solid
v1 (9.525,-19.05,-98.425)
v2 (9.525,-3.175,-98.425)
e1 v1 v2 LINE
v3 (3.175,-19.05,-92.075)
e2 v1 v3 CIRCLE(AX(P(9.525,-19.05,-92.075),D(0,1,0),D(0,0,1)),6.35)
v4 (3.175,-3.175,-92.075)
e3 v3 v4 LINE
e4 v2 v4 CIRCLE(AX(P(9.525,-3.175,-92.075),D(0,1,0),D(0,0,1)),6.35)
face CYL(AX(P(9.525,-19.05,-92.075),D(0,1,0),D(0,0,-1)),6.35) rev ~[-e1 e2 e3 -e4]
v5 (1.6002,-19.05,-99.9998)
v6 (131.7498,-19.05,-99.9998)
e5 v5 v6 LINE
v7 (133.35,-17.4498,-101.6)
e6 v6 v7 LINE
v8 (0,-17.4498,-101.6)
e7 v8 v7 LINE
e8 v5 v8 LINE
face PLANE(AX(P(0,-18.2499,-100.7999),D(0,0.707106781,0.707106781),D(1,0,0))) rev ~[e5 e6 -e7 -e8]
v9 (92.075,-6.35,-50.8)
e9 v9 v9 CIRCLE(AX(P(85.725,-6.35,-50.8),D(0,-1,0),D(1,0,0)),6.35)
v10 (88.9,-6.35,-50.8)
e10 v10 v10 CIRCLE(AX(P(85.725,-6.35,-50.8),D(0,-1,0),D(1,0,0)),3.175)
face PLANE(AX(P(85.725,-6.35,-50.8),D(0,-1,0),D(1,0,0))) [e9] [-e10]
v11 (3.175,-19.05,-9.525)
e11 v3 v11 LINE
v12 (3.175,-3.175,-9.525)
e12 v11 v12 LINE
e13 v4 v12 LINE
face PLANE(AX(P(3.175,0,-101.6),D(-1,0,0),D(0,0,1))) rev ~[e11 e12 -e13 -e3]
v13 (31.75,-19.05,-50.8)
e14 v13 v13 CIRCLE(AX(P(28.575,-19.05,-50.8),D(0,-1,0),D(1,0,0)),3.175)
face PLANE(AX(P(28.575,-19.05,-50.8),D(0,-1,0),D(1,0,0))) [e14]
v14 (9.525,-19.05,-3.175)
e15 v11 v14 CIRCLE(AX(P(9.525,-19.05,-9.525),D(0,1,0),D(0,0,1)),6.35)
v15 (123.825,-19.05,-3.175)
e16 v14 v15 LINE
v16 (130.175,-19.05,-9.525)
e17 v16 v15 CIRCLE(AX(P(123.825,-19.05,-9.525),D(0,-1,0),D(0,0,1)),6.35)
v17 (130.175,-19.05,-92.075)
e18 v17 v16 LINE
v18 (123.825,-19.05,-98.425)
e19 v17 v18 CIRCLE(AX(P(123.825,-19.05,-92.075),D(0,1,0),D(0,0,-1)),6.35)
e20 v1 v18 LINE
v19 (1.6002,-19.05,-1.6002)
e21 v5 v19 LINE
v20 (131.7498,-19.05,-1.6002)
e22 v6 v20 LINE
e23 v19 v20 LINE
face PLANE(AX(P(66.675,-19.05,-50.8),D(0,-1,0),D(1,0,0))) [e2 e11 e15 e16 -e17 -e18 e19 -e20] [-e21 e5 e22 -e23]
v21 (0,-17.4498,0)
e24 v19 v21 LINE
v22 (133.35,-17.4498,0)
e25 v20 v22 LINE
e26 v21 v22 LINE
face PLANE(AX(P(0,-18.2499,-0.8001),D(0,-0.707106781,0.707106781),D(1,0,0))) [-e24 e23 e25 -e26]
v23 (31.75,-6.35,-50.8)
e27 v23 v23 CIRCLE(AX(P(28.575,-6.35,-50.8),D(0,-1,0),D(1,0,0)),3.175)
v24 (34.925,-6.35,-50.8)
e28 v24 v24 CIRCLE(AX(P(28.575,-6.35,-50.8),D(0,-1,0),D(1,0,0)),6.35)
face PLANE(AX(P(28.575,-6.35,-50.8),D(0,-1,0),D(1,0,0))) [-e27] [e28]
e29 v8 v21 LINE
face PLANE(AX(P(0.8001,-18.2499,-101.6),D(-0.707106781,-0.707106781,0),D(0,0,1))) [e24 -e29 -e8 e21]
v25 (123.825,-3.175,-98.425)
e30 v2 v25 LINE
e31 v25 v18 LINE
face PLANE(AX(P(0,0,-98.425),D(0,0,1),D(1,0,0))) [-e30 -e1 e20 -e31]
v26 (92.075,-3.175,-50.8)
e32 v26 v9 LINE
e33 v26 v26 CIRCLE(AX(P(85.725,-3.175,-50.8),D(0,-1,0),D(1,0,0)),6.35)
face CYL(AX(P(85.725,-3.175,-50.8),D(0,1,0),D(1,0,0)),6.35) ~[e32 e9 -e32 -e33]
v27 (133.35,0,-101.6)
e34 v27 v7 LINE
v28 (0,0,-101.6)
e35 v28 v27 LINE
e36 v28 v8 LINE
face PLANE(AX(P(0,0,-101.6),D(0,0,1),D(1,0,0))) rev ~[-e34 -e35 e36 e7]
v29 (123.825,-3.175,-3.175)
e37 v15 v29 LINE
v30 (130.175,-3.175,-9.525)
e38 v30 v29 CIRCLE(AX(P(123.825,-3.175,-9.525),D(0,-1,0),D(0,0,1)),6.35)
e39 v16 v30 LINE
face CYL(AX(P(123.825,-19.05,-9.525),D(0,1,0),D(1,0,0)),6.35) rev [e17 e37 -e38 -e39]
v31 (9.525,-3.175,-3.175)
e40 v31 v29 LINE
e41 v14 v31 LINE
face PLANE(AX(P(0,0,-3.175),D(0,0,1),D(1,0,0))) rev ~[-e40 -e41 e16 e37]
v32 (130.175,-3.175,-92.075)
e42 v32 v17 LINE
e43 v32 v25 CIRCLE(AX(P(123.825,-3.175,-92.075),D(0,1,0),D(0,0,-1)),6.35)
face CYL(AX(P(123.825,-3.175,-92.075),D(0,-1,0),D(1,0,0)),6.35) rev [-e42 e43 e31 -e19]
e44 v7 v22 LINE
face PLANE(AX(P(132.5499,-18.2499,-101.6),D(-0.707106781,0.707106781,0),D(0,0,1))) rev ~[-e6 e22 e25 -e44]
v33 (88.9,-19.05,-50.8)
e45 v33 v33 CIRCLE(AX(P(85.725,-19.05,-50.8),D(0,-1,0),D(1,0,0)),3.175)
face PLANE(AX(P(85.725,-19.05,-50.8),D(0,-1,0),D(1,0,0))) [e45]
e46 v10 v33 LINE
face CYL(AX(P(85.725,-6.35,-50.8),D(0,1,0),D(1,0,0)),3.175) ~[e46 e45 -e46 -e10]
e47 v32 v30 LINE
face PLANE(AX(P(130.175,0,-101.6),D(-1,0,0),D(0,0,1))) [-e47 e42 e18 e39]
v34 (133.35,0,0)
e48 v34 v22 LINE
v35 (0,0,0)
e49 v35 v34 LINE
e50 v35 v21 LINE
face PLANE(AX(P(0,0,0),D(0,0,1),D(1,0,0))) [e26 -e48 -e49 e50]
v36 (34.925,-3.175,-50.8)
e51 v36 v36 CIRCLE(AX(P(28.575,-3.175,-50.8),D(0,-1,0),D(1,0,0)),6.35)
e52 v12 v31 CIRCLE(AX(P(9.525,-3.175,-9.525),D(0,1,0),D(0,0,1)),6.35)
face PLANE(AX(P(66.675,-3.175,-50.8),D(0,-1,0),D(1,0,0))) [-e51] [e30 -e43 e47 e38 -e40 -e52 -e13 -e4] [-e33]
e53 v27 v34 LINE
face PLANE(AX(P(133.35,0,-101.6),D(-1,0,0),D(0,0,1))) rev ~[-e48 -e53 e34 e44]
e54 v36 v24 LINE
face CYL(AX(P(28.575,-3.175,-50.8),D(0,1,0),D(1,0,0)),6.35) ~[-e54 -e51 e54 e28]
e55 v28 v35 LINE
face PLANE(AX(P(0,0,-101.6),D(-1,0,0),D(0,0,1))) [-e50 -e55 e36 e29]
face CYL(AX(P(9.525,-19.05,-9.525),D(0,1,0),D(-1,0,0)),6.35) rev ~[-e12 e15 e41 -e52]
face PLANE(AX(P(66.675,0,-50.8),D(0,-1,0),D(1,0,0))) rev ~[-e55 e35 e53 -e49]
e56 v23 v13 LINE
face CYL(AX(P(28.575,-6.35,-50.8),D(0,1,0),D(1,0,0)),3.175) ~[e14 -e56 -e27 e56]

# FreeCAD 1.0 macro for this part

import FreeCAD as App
import Part
import Sketcher
from FreeCAD import Vector
Q = App.Units.Quantity


def edges_at(feature, points):
    """Names of the edges that pass closest to the given points."""
    edges = feature.Shape.Edges
    near = lambda p: min(range(len(edges)), key=lambda i: edges[i].distToShape(Part.Vertex(*p))[0])
    return sorted({f"Edge{near(p) + 1}" for p in points})


def faces_at(feature, points):
    """Names of the faces that lie closest to the given points."""
    faces = feature.Shape.Faces
    near = lambda p: min(range(len(faces)), key=lambda i: faces[i].distToShape(Part.Vertex(*p))[0])
    return sorted({f"Face{near(p) + 1}" for p in points})

doc = App.newDocument("Part")
params = doc.addObject("Spreadsheet::Sheet", "Params")
for row, (alias, value) in enumerate([
    ("sketch1_height", "4 in"),
    ("sketch1_width", "5.25 in"),
    ("pad1_length", "0.75 in"),
    ("thickness_wall", "0.125 in"),
    ("sketch2_diameter", "0.5 in"),
    ("pad2_length", "0.125 in"),
    ("sketch3_diameter", "0.25 in"),
    ("pad3_length", "0.5 in"),
    ("sketch4_diameter", "0.25 in"),
    ("pad4_length", "0.5 in"),
    ("fillet_radius", "0.25 in"),
    ("chamfer_size", "0.063 in"),
], start=1):
    params.set(f"A{row}", alias)
    params.set(f"B{row}", "=" + value)
    params.setAlias(f"B{row}", alias)

body = doc.addObject("PartDesign::Body", "Body")

sketch1 = body.newObject("Sketcher::SketchObject", "Sketch")
sketch1.AttachmentSupport = (doc.getObject("XZ_Plane"), [""])
sketch1.MapMode = "FlatFace"
sketch1.addGeometry(Part.LineSegment(Vector(0, 0, 0), Vector(0, -102, 0)), False)
sketch1.addGeometry(Part.LineSegment(Vector(0, -102, 0), Vector(133, -102, 0)), False)
sketch1.addGeometry(Part.LineSegment(Vector(133, -102, 0), Vector(133, 0, 0)), False)
sketch1.addGeometry(Part.LineSegment(Vector(133, 0, 0), Vector(0, 0, 0)), False)
sketch1.addConstraint(Sketcher.Constraint("Coincident", 0, 2, 1, 1))
sketch1.addConstraint(Sketcher.Constraint("Coincident", 1, 2, 2, 1))
sketch1.addConstraint(Sketcher.Constraint("Coincident", 2, 2, 3, 1))
sketch1.addConstraint(Sketcher.Constraint("Coincident", 3, 2, 0, 1))
sketch1.addConstraint(Sketcher.Constraint("Vertical", 0))
sketch1.addConstraint(Sketcher.Constraint("Horizontal", 1))
sketch1.addConstraint(Sketcher.Constraint("Vertical", 2))
sketch1.addConstraint(Sketcher.Constraint("Horizontal", 3))
sketch1.addConstraint(Sketcher.Constraint("Coincident", 3, 2, -1, 1))
sketch1.addConstraint(Sketcher.Constraint("DistanceY", 0, 2, 0, 1, Q("4 in")))
sketch1.addConstraint(Sketcher.Constraint("DistanceX", 1, 1, 1, 2, Q("5.25 in")))
sketch1.setExpression("Constraints[9]", "Params.sketch1_height")
sketch1.setExpression("Constraints[10]", "Params.sketch1_width")
pad1 = body.newObject("PartDesign::Pad", "Pad")
pad1.Profile = sketch1
pad1.setExpression("Length", "Params.pad1_length")
doc.recompute()

thickness = body.newObject("PartDesign::Thickness", "Thickness")
thickness.Base = (pad1, faces_at(pad1, [(66.675, -19.05, -50.8)]))
thickness.setExpression("Value", "Params.thickness_wall")
thickness.Reversed = True
thickness.Join = "Arc"

sketch2 = body.newObject("Sketcher::SketchObject", "Sketch001")
sketch2.AttachmentSupport = (doc.getObject("XZ_Plane"), [""])
sketch2.MapMode = "FlatFace"
sketch2.AttachmentOffset = App.Placement(Vector(0, 0, 0.125 * 25.4), App.Rotation())
sketch2.addGeometry(Part.Circle(Vector(29, -51, 0), Vector(0, 0, 1), 6), False)
sketch2.addGeometry(Part.Circle(Vector(86, -51, 0), Vector(0, 0, 1), 6), False)
sketch2.addConstraint(Sketcher.Constraint("Equal", 0, 1))
sketch2.addConstraint(Sketcher.Constraint("Horizontal", 0, 3, 1, 3))
sketch2.addConstraint(Sketcher.Constraint("Diameter", 0, Q("0.5 in")))
sketch2.addConstraint(Sketcher.Constraint("DistanceY", 0, 3, -1, 1, Q("2 in")))
sketch2.addConstraint(Sketcher.Constraint("DistanceX", 0, 3, 1, 3, Q("2.25 in")))
sketch2.addConstraint(Sketcher.Constraint("DistanceX", -1, 1, 0, 3, Q("1.125 in")))
sketch2.setExpression("Constraints[2]", "Params.sketch2_diameter")
pad2 = body.newObject("PartDesign::Pad", "Pad001")
pad2.Profile = sketch2
pad2.setExpression("Length", "Params.pad2_length")

sketch3 = body.newObject("Sketcher::SketchObject", "Sketch002")
sketch3.AttachmentSupport = (doc.getObject("XZ_Plane"), [""])
sketch3.MapMode = "FlatFace"
sketch3.AttachmentOffset = App.Placement(Vector(0, 0, 0.25 * 25.4), App.Rotation())
sketch3.addGeometry(Part.Circle(Vector(28.6, -50.8, 0), Vector(0, 0, 1), 3.2), False)
sketch3.addConstraint(Sketcher.Constraint("Diameter", 0, Q("0.25 in")))
sketch3.addConstraint(Sketcher.Constraint("DistanceY", 0, 3, -1, 1, Q("2 in")))
sketch3.addConstraint(Sketcher.Constraint("DistanceX", -1, 1, 0, 3, Q("1.125 in")))
sketch3.setExpression("Constraints[0]", "Params.sketch3_diameter")
pad3 = body.newObject("PartDesign::Pad", "Pad002")
pad3.Profile = sketch3
pad3.setExpression("Length", "Params.pad3_length")

sketch4 = body.newObject("Sketcher::SketchObject", "Sketch003")
sketch4.AttachmentSupport = (doc.getObject("XZ_Plane"), [""])
sketch4.MapMode = "FlatFace"
sketch4.AttachmentOffset = App.Placement(Vector(0, 0, 0.25 * 25.4), App.Rotation())
sketch4.addGeometry(Part.Circle(Vector(85.7, -50.8, 0), Vector(0, 0, 1), 3.2), False)
sketch4.addConstraint(Sketcher.Constraint("Diameter", 0, Q("0.25 in")))
sketch4.addConstraint(Sketcher.Constraint("DistanceY", 0, 3, -1, 1, Q("2 in")))
sketch4.addConstraint(Sketcher.Constraint("DistanceX", -1, 1, 0, 3, Q("3.375 in")))
sketch4.setExpression("Constraints[0]", "Params.sketch4_diameter")
pad4 = body.newObject("PartDesign::Pad", "Pad003")
pad4.Profile = sketch4
pad4.setExpression("Length", "Params.pad4_length")
doc.recompute()

fillet = body.newObject("PartDesign::Fillet", "Fillet")
fillet.Base = (pad4, edges_at(pad4, [
    (3.175, -11.113, -3.175),
    (130.175, -11.113, -3.175),
    (3.175, -11.113, -98.425),
    (130.175, -11.113, -98.425),
]))
fillet.setExpression("Radius", "Params.fillet_radius")
doc.recompute()

chamfer = body.newObject("PartDesign::Chamfer", "Chamfer")
chamfer.Base = (fillet, edges_at(fillet, [
    (66.675, -19.05, -101.6),
    (133.35, -19.05, -50.8),
    (66.675, -19.05, 0),
    (0, -19.05, -50.8),
]))
chamfer.setExpression("Size", "Params.chamfer_size")

doc.recompute()
